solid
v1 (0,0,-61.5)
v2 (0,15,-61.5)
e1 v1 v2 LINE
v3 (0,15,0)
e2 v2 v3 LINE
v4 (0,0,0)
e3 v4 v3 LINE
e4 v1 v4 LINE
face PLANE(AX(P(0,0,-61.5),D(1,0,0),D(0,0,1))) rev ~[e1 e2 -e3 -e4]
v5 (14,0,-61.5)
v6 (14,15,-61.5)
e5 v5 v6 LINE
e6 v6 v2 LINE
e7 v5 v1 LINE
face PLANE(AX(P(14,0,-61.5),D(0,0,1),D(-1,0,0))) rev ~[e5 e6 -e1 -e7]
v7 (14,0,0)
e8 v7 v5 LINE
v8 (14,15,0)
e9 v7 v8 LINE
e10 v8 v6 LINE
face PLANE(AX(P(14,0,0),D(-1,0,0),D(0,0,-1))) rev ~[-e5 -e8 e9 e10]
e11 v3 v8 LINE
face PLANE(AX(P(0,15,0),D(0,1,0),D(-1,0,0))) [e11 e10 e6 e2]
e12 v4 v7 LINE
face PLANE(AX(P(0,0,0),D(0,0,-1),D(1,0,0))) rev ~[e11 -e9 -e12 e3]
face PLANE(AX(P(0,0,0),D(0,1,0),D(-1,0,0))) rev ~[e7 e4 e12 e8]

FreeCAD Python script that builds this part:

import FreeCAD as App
import Part
import Sketcher
from FreeCAD import Vector
Q = App.Units.Quantity

doc = App.newDocument("Part")
params = doc.addObject("Spreadsheet::Sheet", "Params")
for row, (alias, value) in enumerate([
    ("sketch1_width", "14 mm"),
    ("sketch1_height", "61.5 mm"),
    ("pad1_length", "15 mm"),
], start=1):
    params.set(f"A{row}", alias)
    params.set(f"B{row}", "=" + value)
    params.setAlias(f"B{row}", alias)

body = doc.addObject("PartDesign::Body", "Body")

# Sketch on XZ plane
sketch1 = body.newObject("Sketcher::SketchObject", "Sketch")
sketch1.AttachmentSupport = (doc.getObject("XZ_Plane"), [""])
sketch1.MapMode = "FlatFace"
sketch1.addGeometry([
    Part.LineSegment(Vector(0, -61.5, 0), Vector(0, 0, 0)),
    Part.LineSegment(Vector(0, 0, 0), Vector(14, 0, 0)),
    Part.LineSegment(Vector(14, 0, 0), Vector(14, -61.5, 0)),
    Part.LineSegment(Vector(14, -61.5, 0), Vector(0, -61.5, 0)),
], False)
sketch1.addConstraint([
    Sketcher.Constraint("Coincident", 0, 2, 1, 1),
    Sketcher.Constraint("Coincident", 1, 2, 2, 1),
    Sketcher.Constraint("Coincident", 2, 2, 3, 1),
    Sketcher.Constraint("Coincident", 3, 2, 0, 1),
    Sketcher.Constraint("Vertical", 0),
    Sketcher.Constraint("Horizontal", 1),
    Sketcher.Constraint("Vertical", 2),
    Sketcher.Constraint("Horizontal", 3),
    Sketcher.Constraint("Coincident", 0, 2, -1, 1),
    Sketcher.Constraint("DistanceX", 1, 1, 1, 2, Q("14 mm")),
    Sketcher.Constraint("DistanceY", 0, 1, 0, 2, Q("61.5 mm")),
])
sketch1.setExpression("Constraints[9]", "Params.sketch1_width")
sketch1.setExpression("Constraints[10]", "Params.sketch1_height")
pad1 = body.newObject("PartDesign::Pad", "Pad")
pad1.Profile = sketch1
pad1.setExpression("Length", "Params.pad1_length")
pad1.Reversed = True

doc.recompute()
